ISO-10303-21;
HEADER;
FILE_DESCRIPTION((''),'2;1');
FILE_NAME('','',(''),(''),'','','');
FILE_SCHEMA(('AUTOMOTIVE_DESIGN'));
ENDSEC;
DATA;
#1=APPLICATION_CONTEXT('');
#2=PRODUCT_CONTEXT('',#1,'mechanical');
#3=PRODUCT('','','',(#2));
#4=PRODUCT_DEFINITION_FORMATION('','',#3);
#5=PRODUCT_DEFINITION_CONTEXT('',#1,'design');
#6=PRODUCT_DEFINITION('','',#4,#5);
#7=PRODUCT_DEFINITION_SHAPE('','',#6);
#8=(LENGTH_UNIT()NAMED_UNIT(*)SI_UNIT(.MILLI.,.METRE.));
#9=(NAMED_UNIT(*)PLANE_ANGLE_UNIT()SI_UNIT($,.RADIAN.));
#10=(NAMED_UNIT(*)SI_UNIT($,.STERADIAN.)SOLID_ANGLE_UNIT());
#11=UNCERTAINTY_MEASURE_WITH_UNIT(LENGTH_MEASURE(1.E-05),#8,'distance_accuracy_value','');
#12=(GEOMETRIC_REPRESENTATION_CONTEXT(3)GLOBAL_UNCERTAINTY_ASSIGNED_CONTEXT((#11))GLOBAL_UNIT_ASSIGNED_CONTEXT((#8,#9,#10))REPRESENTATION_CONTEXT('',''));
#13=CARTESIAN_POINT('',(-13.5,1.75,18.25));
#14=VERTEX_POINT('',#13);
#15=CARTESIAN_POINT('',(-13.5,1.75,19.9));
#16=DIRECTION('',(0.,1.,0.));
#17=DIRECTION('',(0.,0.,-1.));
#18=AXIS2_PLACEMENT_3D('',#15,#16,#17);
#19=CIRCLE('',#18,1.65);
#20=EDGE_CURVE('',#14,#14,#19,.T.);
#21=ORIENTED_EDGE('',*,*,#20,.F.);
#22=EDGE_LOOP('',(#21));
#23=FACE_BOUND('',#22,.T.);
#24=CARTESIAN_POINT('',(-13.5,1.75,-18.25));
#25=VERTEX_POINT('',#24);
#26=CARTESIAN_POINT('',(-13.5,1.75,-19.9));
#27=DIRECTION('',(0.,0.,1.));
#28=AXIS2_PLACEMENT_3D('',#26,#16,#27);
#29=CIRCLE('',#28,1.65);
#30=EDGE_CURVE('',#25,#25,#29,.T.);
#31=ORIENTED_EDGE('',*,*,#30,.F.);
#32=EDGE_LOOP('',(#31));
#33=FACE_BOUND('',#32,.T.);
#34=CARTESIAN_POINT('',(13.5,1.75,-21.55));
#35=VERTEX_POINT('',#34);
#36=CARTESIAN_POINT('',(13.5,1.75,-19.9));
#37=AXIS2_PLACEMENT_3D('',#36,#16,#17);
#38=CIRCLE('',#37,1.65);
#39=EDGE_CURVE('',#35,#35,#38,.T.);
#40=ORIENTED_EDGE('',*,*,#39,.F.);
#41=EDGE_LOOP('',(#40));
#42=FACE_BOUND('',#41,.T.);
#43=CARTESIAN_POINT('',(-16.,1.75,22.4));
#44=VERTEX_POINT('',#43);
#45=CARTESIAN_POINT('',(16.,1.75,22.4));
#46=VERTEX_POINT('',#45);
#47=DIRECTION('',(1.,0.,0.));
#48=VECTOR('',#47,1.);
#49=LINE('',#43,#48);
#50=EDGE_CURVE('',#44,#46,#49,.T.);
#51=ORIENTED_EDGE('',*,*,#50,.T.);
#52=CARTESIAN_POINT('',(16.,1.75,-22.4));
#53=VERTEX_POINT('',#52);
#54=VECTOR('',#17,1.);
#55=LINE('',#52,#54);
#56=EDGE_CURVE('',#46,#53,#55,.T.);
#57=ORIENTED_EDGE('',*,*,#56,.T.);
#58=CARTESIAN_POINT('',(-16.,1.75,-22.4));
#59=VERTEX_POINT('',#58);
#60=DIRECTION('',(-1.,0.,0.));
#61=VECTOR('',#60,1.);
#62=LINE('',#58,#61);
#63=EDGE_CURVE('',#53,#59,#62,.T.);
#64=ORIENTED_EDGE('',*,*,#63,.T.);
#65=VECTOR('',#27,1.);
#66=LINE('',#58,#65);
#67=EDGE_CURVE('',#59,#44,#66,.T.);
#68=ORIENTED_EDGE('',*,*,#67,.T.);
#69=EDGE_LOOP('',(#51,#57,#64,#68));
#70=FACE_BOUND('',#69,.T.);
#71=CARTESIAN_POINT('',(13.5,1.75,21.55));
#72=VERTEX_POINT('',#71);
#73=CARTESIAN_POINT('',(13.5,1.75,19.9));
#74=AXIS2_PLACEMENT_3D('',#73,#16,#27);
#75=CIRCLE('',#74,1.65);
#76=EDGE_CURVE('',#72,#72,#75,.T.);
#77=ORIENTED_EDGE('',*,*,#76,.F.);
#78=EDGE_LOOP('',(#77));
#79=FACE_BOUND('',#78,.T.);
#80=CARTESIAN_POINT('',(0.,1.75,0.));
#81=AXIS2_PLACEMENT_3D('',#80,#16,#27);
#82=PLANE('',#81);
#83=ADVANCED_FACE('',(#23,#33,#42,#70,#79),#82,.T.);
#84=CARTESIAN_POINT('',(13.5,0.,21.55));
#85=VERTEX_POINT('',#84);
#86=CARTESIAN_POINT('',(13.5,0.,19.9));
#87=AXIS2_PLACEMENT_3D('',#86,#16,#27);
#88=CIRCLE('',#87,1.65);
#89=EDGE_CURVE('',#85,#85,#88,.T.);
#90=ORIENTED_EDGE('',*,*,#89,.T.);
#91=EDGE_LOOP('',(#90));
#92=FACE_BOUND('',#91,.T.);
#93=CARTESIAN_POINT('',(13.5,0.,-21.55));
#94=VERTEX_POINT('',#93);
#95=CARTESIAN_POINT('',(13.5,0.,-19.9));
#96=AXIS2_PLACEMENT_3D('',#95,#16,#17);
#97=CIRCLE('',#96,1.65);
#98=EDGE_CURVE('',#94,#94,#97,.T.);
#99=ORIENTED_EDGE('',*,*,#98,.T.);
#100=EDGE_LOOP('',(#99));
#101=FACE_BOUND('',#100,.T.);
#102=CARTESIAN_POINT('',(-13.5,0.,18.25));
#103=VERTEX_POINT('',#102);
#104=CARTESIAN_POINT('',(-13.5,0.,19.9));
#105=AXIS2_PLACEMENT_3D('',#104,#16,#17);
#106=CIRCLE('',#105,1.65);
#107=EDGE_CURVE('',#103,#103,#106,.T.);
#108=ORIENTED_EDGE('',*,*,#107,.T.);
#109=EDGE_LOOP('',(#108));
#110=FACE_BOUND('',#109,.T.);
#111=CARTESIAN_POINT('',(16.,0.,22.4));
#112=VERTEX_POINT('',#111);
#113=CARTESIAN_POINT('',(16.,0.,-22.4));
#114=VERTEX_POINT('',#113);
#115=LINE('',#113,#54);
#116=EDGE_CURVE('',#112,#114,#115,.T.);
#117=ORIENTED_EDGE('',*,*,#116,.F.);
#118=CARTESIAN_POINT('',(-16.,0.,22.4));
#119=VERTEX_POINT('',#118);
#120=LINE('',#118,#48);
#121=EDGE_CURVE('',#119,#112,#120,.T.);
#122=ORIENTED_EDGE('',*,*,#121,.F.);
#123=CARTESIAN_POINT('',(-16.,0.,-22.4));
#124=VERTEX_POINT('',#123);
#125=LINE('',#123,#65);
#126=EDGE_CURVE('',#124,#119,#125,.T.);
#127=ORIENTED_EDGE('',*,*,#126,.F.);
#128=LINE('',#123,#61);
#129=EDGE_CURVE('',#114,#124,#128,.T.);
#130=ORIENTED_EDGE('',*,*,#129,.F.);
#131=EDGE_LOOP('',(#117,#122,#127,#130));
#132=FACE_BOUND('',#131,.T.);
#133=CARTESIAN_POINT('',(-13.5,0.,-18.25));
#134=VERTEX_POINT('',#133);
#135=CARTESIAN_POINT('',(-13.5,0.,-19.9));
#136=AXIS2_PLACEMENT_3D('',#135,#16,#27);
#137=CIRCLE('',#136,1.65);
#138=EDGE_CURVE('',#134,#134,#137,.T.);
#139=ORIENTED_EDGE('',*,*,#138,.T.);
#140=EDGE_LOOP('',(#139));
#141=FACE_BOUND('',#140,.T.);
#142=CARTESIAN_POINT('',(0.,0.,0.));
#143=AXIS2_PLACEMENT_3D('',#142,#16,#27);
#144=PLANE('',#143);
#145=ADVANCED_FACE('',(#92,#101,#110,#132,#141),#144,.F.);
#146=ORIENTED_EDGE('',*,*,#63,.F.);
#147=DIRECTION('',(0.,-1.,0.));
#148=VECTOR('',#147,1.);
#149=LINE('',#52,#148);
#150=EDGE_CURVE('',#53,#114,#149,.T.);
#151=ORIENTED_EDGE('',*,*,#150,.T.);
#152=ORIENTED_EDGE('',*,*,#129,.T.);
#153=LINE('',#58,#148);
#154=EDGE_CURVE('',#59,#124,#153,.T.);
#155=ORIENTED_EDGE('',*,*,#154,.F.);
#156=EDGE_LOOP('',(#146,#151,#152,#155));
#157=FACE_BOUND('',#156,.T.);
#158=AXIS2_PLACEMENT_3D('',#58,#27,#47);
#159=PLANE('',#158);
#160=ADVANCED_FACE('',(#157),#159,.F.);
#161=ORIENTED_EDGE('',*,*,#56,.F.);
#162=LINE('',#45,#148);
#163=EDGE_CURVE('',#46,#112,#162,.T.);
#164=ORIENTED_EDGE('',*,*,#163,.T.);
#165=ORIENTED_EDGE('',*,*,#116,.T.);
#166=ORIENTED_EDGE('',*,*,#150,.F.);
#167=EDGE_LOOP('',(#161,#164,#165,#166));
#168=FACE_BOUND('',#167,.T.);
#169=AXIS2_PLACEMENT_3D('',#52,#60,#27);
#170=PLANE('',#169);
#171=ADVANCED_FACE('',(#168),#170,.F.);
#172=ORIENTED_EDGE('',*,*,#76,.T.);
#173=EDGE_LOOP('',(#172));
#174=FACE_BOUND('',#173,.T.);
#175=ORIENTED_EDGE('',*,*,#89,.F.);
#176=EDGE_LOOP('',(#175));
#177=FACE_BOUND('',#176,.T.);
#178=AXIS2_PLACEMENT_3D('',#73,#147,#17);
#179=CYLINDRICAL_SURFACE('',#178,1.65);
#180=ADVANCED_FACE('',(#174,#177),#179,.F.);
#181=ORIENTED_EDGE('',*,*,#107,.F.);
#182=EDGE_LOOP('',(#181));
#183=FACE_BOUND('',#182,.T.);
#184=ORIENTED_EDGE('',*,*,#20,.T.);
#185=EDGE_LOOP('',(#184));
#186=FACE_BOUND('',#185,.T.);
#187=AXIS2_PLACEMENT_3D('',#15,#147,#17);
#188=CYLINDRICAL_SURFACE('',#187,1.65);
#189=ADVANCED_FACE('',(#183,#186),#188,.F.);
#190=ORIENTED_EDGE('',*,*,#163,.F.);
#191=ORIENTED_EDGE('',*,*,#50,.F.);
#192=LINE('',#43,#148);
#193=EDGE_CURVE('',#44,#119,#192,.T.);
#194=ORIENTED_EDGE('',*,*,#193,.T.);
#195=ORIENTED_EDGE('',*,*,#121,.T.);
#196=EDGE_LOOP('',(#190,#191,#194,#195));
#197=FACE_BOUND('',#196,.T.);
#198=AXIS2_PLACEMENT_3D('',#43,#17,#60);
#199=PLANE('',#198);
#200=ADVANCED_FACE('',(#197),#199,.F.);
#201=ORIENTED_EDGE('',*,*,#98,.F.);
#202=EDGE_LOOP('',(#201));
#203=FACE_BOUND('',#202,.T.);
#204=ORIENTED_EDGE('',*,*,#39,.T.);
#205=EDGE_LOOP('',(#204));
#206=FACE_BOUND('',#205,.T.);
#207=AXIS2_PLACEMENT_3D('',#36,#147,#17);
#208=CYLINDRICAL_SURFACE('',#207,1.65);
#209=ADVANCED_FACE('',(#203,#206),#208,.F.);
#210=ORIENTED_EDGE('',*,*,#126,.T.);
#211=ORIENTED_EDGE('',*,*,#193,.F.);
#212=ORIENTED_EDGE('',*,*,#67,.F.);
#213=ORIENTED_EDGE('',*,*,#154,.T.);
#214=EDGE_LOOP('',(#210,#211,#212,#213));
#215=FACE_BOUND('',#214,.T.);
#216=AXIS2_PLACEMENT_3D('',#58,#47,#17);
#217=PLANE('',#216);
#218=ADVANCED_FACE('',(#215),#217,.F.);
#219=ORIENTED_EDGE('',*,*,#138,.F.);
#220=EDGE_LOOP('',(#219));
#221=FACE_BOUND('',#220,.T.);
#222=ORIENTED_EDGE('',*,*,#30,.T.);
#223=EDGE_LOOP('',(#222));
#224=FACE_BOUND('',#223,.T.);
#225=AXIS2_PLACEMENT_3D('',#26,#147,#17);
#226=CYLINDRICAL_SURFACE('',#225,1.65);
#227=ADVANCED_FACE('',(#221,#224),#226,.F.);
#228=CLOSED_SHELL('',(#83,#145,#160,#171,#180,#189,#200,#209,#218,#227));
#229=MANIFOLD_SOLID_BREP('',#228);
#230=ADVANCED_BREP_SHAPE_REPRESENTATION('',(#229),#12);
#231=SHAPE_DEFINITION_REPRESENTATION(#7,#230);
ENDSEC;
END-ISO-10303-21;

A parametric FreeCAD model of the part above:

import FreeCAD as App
import Part
import Sketcher

V = App.Vector
Q = App.Units.Quantity

doc = App.newDocument("Part")
body = doc.addObject("PartDesign::Body", "Body")

# Sketch on XZ plane
sketch1 = body.newObject("Sketcher::SketchObject", "Sketch")
sketch1.AttachmentSupport = (doc.getObject("XZ_Plane"), [""])
sketch1.MapMode = "FlatFace"
sketch1.addGeometry([
    Part.LineSegment(V(-16, -22.4, 0), V(-16, 22.4, 0)),  # 0
    Part.LineSegment(V(-16, 22.4, 0), V(16, 22.4, 0)),  # 1
    Part.LineSegment(V(16, 22.4, 0), V(16, -22.4, 0)),  # 2
    Part.LineSegment(V(16, -22.4, 0), V(-16, -22.4, 0)),  # 3
    Part.Circle(V(-13.5, 19.9, 0), V(0, 0, 1), 1.6),  # 4
    Part.Circle(V(13.5, 19.9, 0), V(0, 0, 1), 1.6),  # 5
    Part.Circle(V(-13.5, -19.9, 0), V(0, 0, 1), 1.6),  # 6
    Part.Circle(V(13.5, -19.9, 0), V(0, 0, 1), 1.6),  # 7
], False)
sketch1.addConstraint([
    Sketcher.Constraint("Coincident", 0, 2, 1, 1),
    Sketcher.Constraint("Coincident", 1, 2, 2, 1),
    Sketcher.Constraint("Coincident", 2, 2, 3, 1),
    Sketcher.Constraint("Coincident", 3, 2, 0, 1),
    Sketcher.Constraint("Vertical", 0),
    Sketcher.Constraint("Horizontal", 1),
    Sketcher.Constraint("Vertical", 2),
    Sketcher.Constraint("Horizontal", 3),
    Sketcher.Constraint("Equal", 4, 5),
    Sketcher.Constraint("Equal", 5, 6),
    Sketcher.Constraint("Equal", 6, 7),
    Sketcher.Constraint("Symmetric", 5, 3, 6, 3, -1, 1),
    Sketcher.Constraint("Symmetric", 4, 3, 7, 3, -1, 1),
    Sketcher.Constraint("Symmetric", 0, 2, 2, 2, -1, 1),
    Sketcher.Constraint("Symmetric", 4, 3, 5, 3, -2),
    Sketcher.Constraint("Diameter", 4, Q("3.3 mm")),
    Sketcher.Constraint("DistanceX", 1, 1, 1, 2, Q("32 mm")),
    Sketcher.Constraint("DistanceY", 0, 1, 0, 2, Q("44.8 mm")),
    Sketcher.Constraint("DistanceX", 4, 3, 5, 3, Q("27 mm")),
    Sketcher.Constraint("DistanceY", -1, 1, 4, 3, Q("19.9 mm")),
])
pad1 = body.newObject("PartDesign::Pad", "Pad")
pad1.Profile = sketch1
pad1.Length = 1.75
pad1.Reversed = True

doc.recompute()
